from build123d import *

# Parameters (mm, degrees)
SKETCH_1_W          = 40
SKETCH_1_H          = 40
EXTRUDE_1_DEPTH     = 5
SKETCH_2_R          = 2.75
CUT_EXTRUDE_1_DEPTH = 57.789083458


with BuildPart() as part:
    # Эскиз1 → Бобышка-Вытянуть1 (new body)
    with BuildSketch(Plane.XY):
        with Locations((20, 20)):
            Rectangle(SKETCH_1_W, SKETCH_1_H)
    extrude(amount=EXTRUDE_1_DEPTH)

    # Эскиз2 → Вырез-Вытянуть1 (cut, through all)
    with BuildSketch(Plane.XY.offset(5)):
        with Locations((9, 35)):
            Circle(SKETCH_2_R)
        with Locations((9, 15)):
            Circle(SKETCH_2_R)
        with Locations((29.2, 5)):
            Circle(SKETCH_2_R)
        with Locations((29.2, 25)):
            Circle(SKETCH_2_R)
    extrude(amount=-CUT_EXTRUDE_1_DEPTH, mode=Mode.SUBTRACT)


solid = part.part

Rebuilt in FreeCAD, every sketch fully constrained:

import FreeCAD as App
import Part
import Sketcher
Q = App.Units.Quantity

doc = App.newDocument("Part")
body = doc.addObject("PartDesign::Body", "Body")

# Sketch on XY plane
sketch1 = body.newObject("Sketcher::SketchObject", "Sketch")
sketch1.AttachmentSupport = (doc.getObject("XY_Plane"), [""])
sketch1.MapMode = "FlatFace"
sketch1.addGeometry([
    Part.LineSegment(App.Vector(0, 40, 0), App.Vector(0, 0, 0)),
    Part.LineSegment(App.Vector(0, 0, 0), App.Vector(40, 0, 0)),
    Part.LineSegment(App.Vector(40, 0, 0), App.Vector(40, 40, 0)),
    Part.LineSegment(App.Vector(40, 40, 0), App.Vector(0, 40, 0)),
], False)
sketch1.addConstraint([
    Sketcher.Constraint("Coincident", 0, 2, 1, 1),
    Sketcher.Constraint("Coincident", 1, 2, 2, 1),
    Sketcher.Constraint("Coincident", 2, 2, 3, 1),
    Sketcher.Constraint("Coincident", 3, 2, 0, 1),
    Sketcher.Constraint("Vertical", 0),
    Sketcher.Constraint("Horizontal", 1),
    Sketcher.Constraint("Vertical", 2),
    Sketcher.Constraint("Horizontal", 3),
    Sketcher.Constraint("Coincident", 0, 2, -1, 1),
    Sketcher.Constraint("Equal", 3, 0),
    Sketcher.Constraint("DistanceX", 1, 1, 1, 2, Q("40 mm")),
])
pad1 = body.newObject("PartDesign::Pad", "Pad")
pad1.Profile = sketch1
pad1.Length = 5

# Sketch on XY plane
sketch2 = body.newObject("Sketcher::SketchObject", "Sketch001")
sketch2.AttachmentSupport = (doc.getObject("XY_Plane"), [""])
sketch2.MapMode = "FlatFace"
sketch2.AttachmentOffset = App.Placement(App.Vector(0, 0, 5), App.Rotation())
sketch2.addGeometry([
    Part.Circle(App.Vector(9, 35, 0), App.Vector(0, 0, 1), 2.8),
    Part.Circle(App.Vector(9, 15, 0), App.Vector(0, 0, 1), 2.8),
    Part.Circle(App.Vector(29.2, 5, 0), App.Vector(0, 0, 1), 2.8),
    Part.Circle(App.Vector(29.2, 25, 0), App.Vector(0, 0, 1), 2.8),
], False)
sketch2.addConstraint([
    Sketcher.Constraint("Equal", 0, 1),
    Sketcher.Constraint("Equal", 1, 2),
    Sketcher.Constraint("Equal", 2, 3),
    Sketcher.Constraint("Vertical", 0, 3, 1, 3),
    Sketcher.Constraint("Vertical", 2, 3, 3, 3),
    Sketcher.Constraint("Diameter", 0, Q("5.5 mm")),
    Sketcher.Constraint("DistanceX", -1, 1, 0, 3, Q("9 mm")),
    Sketcher.Constraint("DistanceY", -1, 1, 0, 3, Q("35 mm")),
    Sketcher.Constraint("DistanceY", -1, 1, 1, 3, Q("15 mm")),
    Sketcher.Constraint("DistanceY", -1, 1, 2, 3, Q("5 mm")),
    Sketcher.Constraint("DistanceY", -1, 1, 3, 3, Q("25 mm")),
    Sketcher.Constraint("DistanceX", -1, 1, 2, 3, Q("29.2 mm")),
])
pocket1 = body.newObject("PartDesign::Pocket", "Pocket")
pocket1.Profile = sketch2
pocket1.Type = "ThroughAll"

doc.recompute()
